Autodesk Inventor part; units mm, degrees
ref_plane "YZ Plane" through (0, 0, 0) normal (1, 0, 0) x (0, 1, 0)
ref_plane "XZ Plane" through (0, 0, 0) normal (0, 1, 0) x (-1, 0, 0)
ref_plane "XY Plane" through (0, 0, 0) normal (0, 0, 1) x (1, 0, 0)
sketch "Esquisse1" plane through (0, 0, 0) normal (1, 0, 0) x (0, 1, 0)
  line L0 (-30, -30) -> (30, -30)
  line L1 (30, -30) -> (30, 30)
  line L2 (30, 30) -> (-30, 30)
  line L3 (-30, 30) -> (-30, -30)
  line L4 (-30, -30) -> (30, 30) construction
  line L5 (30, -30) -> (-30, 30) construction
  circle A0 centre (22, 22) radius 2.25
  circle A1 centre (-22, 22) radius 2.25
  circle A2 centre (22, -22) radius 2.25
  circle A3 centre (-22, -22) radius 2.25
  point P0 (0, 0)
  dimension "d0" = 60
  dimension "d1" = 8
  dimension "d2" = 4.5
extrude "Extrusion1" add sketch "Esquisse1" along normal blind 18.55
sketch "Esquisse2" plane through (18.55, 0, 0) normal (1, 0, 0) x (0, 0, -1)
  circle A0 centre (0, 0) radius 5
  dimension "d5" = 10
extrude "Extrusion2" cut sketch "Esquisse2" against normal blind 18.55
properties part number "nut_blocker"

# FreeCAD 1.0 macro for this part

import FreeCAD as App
import Part
import Sketcher
from FreeCAD import Vector


def add_polygon(sketch, points):
    """Adds a closed chain of lines whose ends are joined by coincident constraints."""
    first, n = sketch.GeometryCount, len(points)
    for a, b in zip(points, points[1:] + points[:1]):
        sketch.addGeometry(Part.LineSegment(App.Vector(*a, 0), App.Vector(*b, 0)), False)
    for i in range(n):
        sketch.addConstraint(Sketcher.Constraint("Coincident", first + i, 2, first + (i + 1) % n, 1))

doc = App.newDocument("Part")
body = doc.addObject("PartDesign::Body", "Body")

# Sketch on YZ plane
sketch1 = body.newObject("Sketcher::SketchObject", "Sketch")
sketch1.AttachmentSupport = (doc.getObject("YZ_Plane"), [""])
sketch1.MapMode = "FlatFace"
add_polygon(sketch1, [(-30, 30), (-30, -30), (30, -30), (30, 30)])  # lines 0-3
sketch1.addGeometry(Part.Circle(Vector(-22, -22, 0), Vector(0, 0, 1), 2.25), False)  # 4
sketch1.addGeometry(Part.Circle(Vector(22, -22, 0), Vector(0, 0, 1), 2.25), False)  # 5
sketch1.addGeometry(Part.Circle(Vector(-22, 22, 0), Vector(0, 0, 1), 2.25), False)  # 6
sketch1.addGeometry(Part.Circle(Vector(22, 22, 0), Vector(0, 0, 1), 2.25), False)  # 7
sketch1.addConstraint(Sketcher.Constraint("Vertical", 0))
sketch1.addConstraint(Sketcher.Constraint("Horizontal", 1))
sketch1.addConstraint(Sketcher.Constraint("Vertical", 2))
sketch1.addConstraint(Sketcher.Constraint("Horizontal", 3))
sketch1.addConstraint(Sketcher.Constraint("Equal", 4, 5))
sketch1.addConstraint(Sketcher.Constraint("Equal", 5, 6))
sketch1.addConstraint(Sketcher.Constraint("Equal", 6, 7))
sketch1.addConstraint(Sketcher.Constraint("Symmetric", 5, 3, 6, 3, -1, 1))
sketch1.addConstraint(Sketcher.Constraint("Symmetric", 4, 3, 7, 3, -1, 1))
sketch1.addConstraint(Sketcher.Constraint("Symmetric", 0, 2, 2, 2, -1, 1))
sketch1.addConstraint(Sketcher.Constraint("Symmetric", 4, 3, 5, 3, -2))
sketch1.addConstraint(Sketcher.Constraint("Equal", 3, 0))
sketch1.addConstraint(Sketcher.Constraint("Diameter", 4, 4.5))
sketch1.addConstraint(Sketcher.Constraint("DistanceX", 1, 1, 1, 2, 60.0))
sketch1.addConstraint(Sketcher.Constraint("DistanceX", 0, 2, 4, 3, 8.0))
sketch1.addConstraint(Sketcher.Constraint("DistanceY", 0, 2, 4, 3, 8.0))
pad1 = body.newObject("PartDesign::Pad", "Pad")
pad1.Profile = sketch1
pad1.Length = 18.55

# Sketch on YZ plane
sketch2 = body.newObject("Sketcher::SketchObject", "Sketch001")
sketch2.AttachmentSupport = (doc.getObject("YZ_Plane"), [""])
sketch2.MapMode = "FlatFace"
sketch2.AttachmentOffset = App.Placement(Vector(0, 0, 18.55), App.Rotation())
sketch2.addGeometry(Part.Circle(Vector(0, 0, 0), Vector(0, 0, 1), 5), False)
sketch2.addConstraint(Sketcher.Constraint("Coincident", 0, 3, -1, 1))
sketch2.addConstraint(Sketcher.Constraint("Diameter", 0, 10.0))
pocket1 = body.newObject("PartDesign::Pocket", "Pocket")
pocket1.Profile = sketch2
pocket1.Length = 18.55

doc.recompute()
